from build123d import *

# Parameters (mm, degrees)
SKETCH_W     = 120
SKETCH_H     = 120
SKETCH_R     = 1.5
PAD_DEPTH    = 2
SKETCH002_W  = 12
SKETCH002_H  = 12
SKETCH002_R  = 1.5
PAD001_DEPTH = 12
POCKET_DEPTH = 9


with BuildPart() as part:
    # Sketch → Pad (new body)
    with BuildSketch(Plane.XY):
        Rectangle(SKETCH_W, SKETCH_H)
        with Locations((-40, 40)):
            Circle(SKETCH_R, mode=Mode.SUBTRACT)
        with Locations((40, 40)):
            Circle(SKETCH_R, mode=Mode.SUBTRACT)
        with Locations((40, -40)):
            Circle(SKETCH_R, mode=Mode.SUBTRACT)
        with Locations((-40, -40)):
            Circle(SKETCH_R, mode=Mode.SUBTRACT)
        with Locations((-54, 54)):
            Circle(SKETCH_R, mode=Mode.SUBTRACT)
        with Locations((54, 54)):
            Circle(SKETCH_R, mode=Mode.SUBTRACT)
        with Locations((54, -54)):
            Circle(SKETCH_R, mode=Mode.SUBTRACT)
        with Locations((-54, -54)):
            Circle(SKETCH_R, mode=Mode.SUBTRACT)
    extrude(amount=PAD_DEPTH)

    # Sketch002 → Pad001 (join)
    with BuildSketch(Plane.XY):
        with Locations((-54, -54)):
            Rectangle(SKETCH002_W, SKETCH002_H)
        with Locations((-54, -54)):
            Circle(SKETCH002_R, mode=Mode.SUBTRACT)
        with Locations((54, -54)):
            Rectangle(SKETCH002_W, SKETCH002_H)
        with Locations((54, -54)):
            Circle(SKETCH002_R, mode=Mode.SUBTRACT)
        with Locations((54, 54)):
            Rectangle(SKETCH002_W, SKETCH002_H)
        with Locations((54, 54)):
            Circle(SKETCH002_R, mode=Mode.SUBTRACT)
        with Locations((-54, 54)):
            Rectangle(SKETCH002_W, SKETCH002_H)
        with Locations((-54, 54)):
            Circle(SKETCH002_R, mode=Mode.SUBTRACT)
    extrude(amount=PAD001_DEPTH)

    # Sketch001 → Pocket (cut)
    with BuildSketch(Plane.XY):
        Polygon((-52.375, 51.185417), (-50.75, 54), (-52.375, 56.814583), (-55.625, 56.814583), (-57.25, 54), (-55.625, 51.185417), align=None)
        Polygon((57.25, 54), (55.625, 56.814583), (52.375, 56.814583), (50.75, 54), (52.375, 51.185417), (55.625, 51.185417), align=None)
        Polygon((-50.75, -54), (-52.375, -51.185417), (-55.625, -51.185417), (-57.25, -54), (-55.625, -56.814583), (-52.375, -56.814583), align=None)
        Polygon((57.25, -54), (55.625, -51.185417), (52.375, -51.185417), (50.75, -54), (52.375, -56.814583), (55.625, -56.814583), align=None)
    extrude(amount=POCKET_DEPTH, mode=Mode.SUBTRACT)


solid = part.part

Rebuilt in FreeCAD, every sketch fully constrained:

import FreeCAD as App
import Part
import Sketcher
from FreeCAD import Vector
Q = App.Units.Quantity

doc = App.newDocument("Part")
body = doc.addObject("PartDesign::Body", "Body")

# Sketch on XY plane
sketch1 = body.newObject("Sketcher::SketchObject", "Sketch")
sketch1.AttachmentSupport = (doc.getObject("XY_Plane"), [""])
sketch1.MapMode = "FlatFace"
sketch1.addGeometry([
    Part.LineSegment(Vector(-60, 60, 0), Vector(-60, -60, 0)),  # 0
    Part.LineSegment(Vector(-60, -60, 0), Vector(60, -60, 0)),  # 1
    Part.LineSegment(Vector(60, -60, 0), Vector(60, 60, 0)),  # 2
    Part.LineSegment(Vector(60, 60, 0), Vector(-60, 60, 0)),  # 3
    Part.Circle(Vector(-54, -54, 0), Vector(0, 0, 1), 1.5),  # 4
    Part.Circle(Vector(-40, -40, 0), Vector(0, 0, 1), 1.5),  # 5
    Part.Circle(Vector(54, -54, 0), Vector(0, 0, 1), 1.5),  # 6
    Part.Circle(Vector(40, -40, 0), Vector(0, 0, 1), 1.5),  # 7
    Part.Circle(Vector(-40, 40, 0), Vector(0, 0, 1), 1.5),  # 8
    Part.Circle(Vector(-54, 54, 0), Vector(0, 0, 1), 1.5),  # 9
    Part.Circle(Vector(40, 40, 0), Vector(0, 0, 1), 1.5),  # 10
    Part.Circle(Vector(54, 54, 0), Vector(0, 0, 1), 1.5),  # 11
], False)
sketch1.addConstraint([
    Sketcher.Constraint("Coincident", 0, 2, 1, 1),
    Sketcher.Constraint("Coincident", 1, 2, 2, 1),
    Sketcher.Constraint("Coincident", 2, 2, 3, 1),
    Sketcher.Constraint("Coincident", 3, 2, 0, 1),
    Sketcher.Constraint("Vertical", 0),
    Sketcher.Constraint("Horizontal", 1),
    Sketcher.Constraint("Vertical", 2),
    Sketcher.Constraint("Horizontal", 3),
    Sketcher.Constraint("Equal", 4, 5),
    Sketcher.Constraint("Equal", 5, 6),
    Sketcher.Constraint("Equal", 6, 7),
    Sketcher.Constraint("Equal", 7, 8),
    Sketcher.Constraint("Equal", 8, 9),
    Sketcher.Constraint("Equal", 9, 10),
    Sketcher.Constraint("Equal", 10, 11),
    Sketcher.Constraint("Symmetric", 7, 3, 8, 3, -1, 1),
    Sketcher.Constraint("Symmetric", 6, 3, 9, 3, -1, 1),
    Sketcher.Constraint("Symmetric", 5, 3, 10, 3, -1, 1),
    Sketcher.Constraint("Symmetric", 4, 3, 11, 3, -1, 1),
    Sketcher.Constraint("Symmetric", 0, 2, 2, 2, -1, 1),
    Sketcher.Constraint("Symmetric", 4, 3, 6, 3, -2),
    Sketcher.Constraint("Symmetric", 5, 3, 7, 3, -2),
    Sketcher.Constraint("Equal", 3, 0),
    Sketcher.Constraint("Diameter", 4, 3.0),
    Sketcher.Constraint("DistanceX", 1, 1, 1, 2, 120.0),
    Sketcher.Constraint("DistanceX", 4, 3, -1, 1, 54.0),
    Sketcher.Constraint("DistanceY", 4, 3, -1, 1, 54.0),
    Sketcher.Constraint("DistanceX", 5, 3, -1, 1, 40.0),
    Sketcher.Constraint("DistanceY", 5, 3, -1, 1, 40.0),
])
pad1 = body.newObject("PartDesign::Pad", "Pad")
pad1.Profile = sketch1
pad1.Length = 2

# Sketch on XY plane
sketch2 = body.newObject("Sketcher::SketchObject", "Sketch001")
sketch2.AttachmentSupport = (doc.getObject("XY_Plane"), [""])
sketch2.MapMode = "FlatFace"
sketch2.addGeometry([
    Part.LineSegment(Vector(-60, -48, 0), Vector(-60, -60, 0)),  # 0
    Part.LineSegment(Vector(-60, -60, 0), Vector(-48, -60, 0)),  # 1
    Part.LineSegment(Vector(-48, -60, 0), Vector(-48, -48, 0)),  # 2
    Part.LineSegment(Vector(-48, -48, 0), Vector(-60, -48, 0)),  # 3
    Part.Circle(Vector(-54, -54, 0), Vector(0, 0, 1), 1.5),  # 4
    Part.LineSegment(Vector(48, -48, 0), Vector(48, -60, 0)),  # 5
    Part.LineSegment(Vector(48, -60, 0), Vector(60, -60, 0)),  # 6
    Part.LineSegment(Vector(60, -60, 0), Vector(60, -48, 0)),  # 7
    Part.LineSegment(Vector(60, -48, 0), Vector(48, -48, 0)),  # 8
    Part.Circle(Vector(54, -54, 0), Vector(0, 0, 1), 1.5),  # 9
    Part.LineSegment(Vector(48, 60, 0), Vector(48, 48, 0)),  # 10
    Part.LineSegment(Vector(48, 48, 0), Vector(60, 48, 0)),  # 11
    Part.LineSegment(Vector(60, 48, 0), Vector(60, 60, 0)),  # 12
    Part.LineSegment(Vector(60, 60, 0), Vector(48, 60, 0)),  # 13
    Part.Circle(Vector(54, 54, 0), Vector(0, 0, 1), 1.5),  # 14
    Part.LineSegment(Vector(-60, 60, 0), Vector(-60, 48, 0)),  # 15
    Part.LineSegment(Vector(-60, 48, 0), Vector(-48, 48, 0)),  # 16
    Part.LineSegment(Vector(-48, 48, 0), Vector(-48, 60, 0)),  # 17
    Part.LineSegment(Vector(-48, 60, 0), Vector(-60, 60, 0)),  # 18
    Part.Circle(Vector(-54, 54, 0), Vector(0, 0, 1), 1.5),  # 19
], False)
sketch2.addConstraint([
    Sketcher.Constraint("Coincident", 0, 2, 1, 1),
    Sketcher.Constraint("Coincident", 1, 2, 2, 1),
    Sketcher.Constraint("Coincident", 2, 2, 3, 1),
    Sketcher.Constraint("Coincident", 3, 2, 0, 1),
    Sketcher.Constraint("Coincident", 5, 2, 6, 1),
    Sketcher.Constraint("Coincident", 6, 2, 7, 1),
    Sketcher.Constraint("Coincident", 7, 2, 8, 1),
    Sketcher.Constraint("Coincident", 8, 2, 5, 1),
    Sketcher.Constraint("Coincident", 10, 2, 11, 1),
    Sketcher.Constraint("Coincident", 11, 2, 12, 1),
    Sketcher.Constraint("Coincident", 12, 2, 13, 1),
    Sketcher.Constraint("Coincident", 13, 2, 10, 1),
    Sketcher.Constraint("Coincident", 15, 2, 16, 1),
    Sketcher.Constraint("Coincident", 16, 2, 17, 1),
    Sketcher.Constraint("Coincident", 17, 2, 18, 1),
    Sketcher.Constraint("Coincident", 18, 2, 15, 1),
    Sketcher.Constraint("Vertical", 0),
    Sketcher.Constraint("Horizontal", 1),
    Sketcher.Constraint("Vertical", 2),
    Sketcher.Constraint("Horizontal", 3),
    Sketcher.Constraint("Vertical", 5),
    Sketcher.Constraint("Horizontal", 6),
    Sketcher.Constraint("Vertical", 7),
    Sketcher.Constraint("Horizontal", 8),
    Sketcher.Constraint("Vertical", 10),
    Sketcher.Constraint("Horizontal", 11),
    Sketcher.Constraint("Vertical", 12),
    Sketcher.Constraint("Horizontal", 13),
    Sketcher.Constraint("Vertical", 15),
    Sketcher.Constraint("Horizontal", 16),
    Sketcher.Constraint("Vertical", 17),
    Sketcher.Constraint("Horizontal", 18),
    Sketcher.Constraint("Equal", 4, 9),
    Sketcher.Constraint("Equal", 9, 14),
    Sketcher.Constraint("Equal", 14, 19),
    Sketcher.Constraint("Symmetric", 4, 3, 14, 3, -1, 1),
    Sketcher.Constraint("Symmetric", 9, 3, 19, 3, -1, 1),
    Sketcher.Constraint("Symmetric", 2, 2, 10, 2, -1, 1),
    Sketcher.Constraint("Symmetric", 0, 2, 12, 2, -1, 1),
    Sketcher.Constraint("Symmetric", 7, 2, 15, 2, -1, 1),
    Sketcher.Constraint("Symmetric", 5, 2, 17, 2, -1, 1),
    Sketcher.Constraint("Symmetric", 4, 3, 9, 3, -2),
    Sketcher.Constraint("Symmetric", 1, 2, 5, 2, -2),
    Sketcher.Constraint("Symmetric", 3, 2, 7, 2, -2),
    Sketcher.Constraint("Equal", 18, 0),
    Sketcher.Constraint("Diameter", 4, 3.0),
    Sketcher.Constraint("DistanceX", 1, 1, 1, 2, 12.0),
    Sketcher.Constraint("DistanceX", 4, 3, -1, 1, 54.0),
    Sketcher.Constraint("DistanceY", 4, 3, -1, 1, 54.0),
    Sketcher.Constraint("DistanceX", 0, 2, -1, 1, 60.0),
    Sketcher.Constraint("DistanceY", 0, 2, -1, 1, 60.0),
])
pad2 = body.newObject("PartDesign::Pad", "Pad001")
pad2.Profile = sketch2
pad2.Length = 12

# Sketch on XY plane
sketch3 = body.newObject("Sketcher::SketchObject", "Sketch002")
sketch3.AttachmentSupport = (doc.getObject("XY_Plane"), [""])
sketch3.MapMode = "FlatFace"
sketch3.addGeometry([
    Part.LineSegment(Vector(-52.4, 51.2, 0), Vector(-50.8, 54, 0)),  # 0
    Part.LineSegment(Vector(-50.8, 54, 0), Vector(-52.4, 56.8, 0)),  # 1
    Part.LineSegment(Vector(-52.4, 56.8, 0), Vector(-55.6, 56.8, 0)),  # 2
    Part.LineSegment(Vector(-55.6, 56.8, 0), Vector(-57.2, 54, 0)),  # 3
    Part.LineSegment(Vector(-57.2, 54, 0), Vector(-55.6, 51.2, 0)),  # 4
    Part.LineSegment(Vector(-55.6, 51.2, 0), Vector(-52.4, 51.2, 0)),  # 5
    Part.LineSegment(Vector(57.2, 54, 0), Vector(55.6, 56.8, 0)),  # 6
    Part.LineSegment(Vector(55.6, 56.8, 0), Vector(52.4, 56.8, 0)),  # 7
    Part.LineSegment(Vector(52.4, 56.8, 0), Vector(50.8, 54, 0)),  # 8
    Part.LineSegment(Vector(50.8, 54, 0), Vector(52.4, 51.2, 0)),  # 9
    Part.LineSegment(Vector(52.4, 51.2, 0), Vector(55.6, 51.2, 0)),  # 10
    Part.LineSegment(Vector(55.6, 51.2, 0), Vector(57.2, 54, 0)),  # 11
    Part.LineSegment(Vector(-50.8, -54, 0), Vector(-52.4, -51.2, 0)),  # 12
    Part.LineSegment(Vector(-52.4, -51.2, 0), Vector(-55.6, -51.2, 0)),  # 13
    Part.LineSegment(Vector(-55.6, -51.2, 0), Vector(-57.2, -54, 0)),  # 14
    Part.LineSegment(Vector(-57.2, -54, 0), Vector(-55.6, -56.8, 0)),  # 15
    Part.LineSegment(Vector(-55.6, -56.8, 0), Vector(-52.4, -56.8, 0)),  # 16
    Part.LineSegment(Vector(-52.4, -56.8, 0), Vector(-50.8, -54, 0)),  # 17
    Part.LineSegment(Vector(57.2, -54, 0), Vector(55.6, -51.2, 0)),  # 18
    Part.LineSegment(Vector(55.6, -51.2, 0), Vector(52.4, -51.2, 0)),  # 19
    Part.LineSegment(Vector(52.4, -51.2, 0), Vector(50.8, -54, 0)),  # 20
    Part.LineSegment(Vector(50.8, -54, 0), Vector(52.4, -56.8, 0)),  # 21
    Part.LineSegment(Vector(52.4, -56.8, 0), Vector(55.6, -56.8, 0)),  # 22
    Part.LineSegment(Vector(55.6, -56.8, 0), Vector(57.2, -54, 0)),  # 23
], False)
sketch3.addConstraint([
    Sketcher.Constraint("Coincident", 0, 2, 1, 1),
    Sketcher.Constraint("Coincident", 1, 2, 2, 1),
    Sketcher.Constraint("Coincident", 2, 2, 3, 1),
    Sketcher.Constraint("Coincident", 3, 2, 4, 1),
    Sketcher.Constraint("Coincident", 4, 2, 5, 1),
    Sketcher.Constraint("Coincident", 5, 2, 0, 1),
    Sketcher.Constraint("Coincident", 6, 2, 7, 1),
    Sketcher.Constraint("Coincident", 7, 2, 8, 1),
    Sketcher.Constraint("Coincident", 8, 2, 9, 1),
    Sketcher.Constraint("Coincident", 9, 2, 10, 1),
    Sketcher.Constraint("Coincident", 10, 2, 11, 1),
    Sketcher.Constraint("Coincident", 11, 2, 6, 1),
    Sketcher.Constraint("Coincident", 12, 2, 13, 1),
    Sketcher.Constraint("Coincident", 13, 2, 14, 1),
    Sketcher.Constraint("Coincident", 14, 2, 15, 1),
    Sketcher.Constraint("Coincident", 15, 2, 16, 1),
    Sketcher.Constraint("Coincident", 16, 2, 17, 1),
    Sketcher.Constraint("Coincident", 17, 2, 12, 1),
    Sketcher.Constraint("Coincident", 18, 2, 19, 1),
    Sketcher.Constraint("Coincident", 19, 2, 20, 1),
    Sketcher.Constraint("Coincident", 20, 2, 21, 1),
    Sketcher.Constraint("Coincident", 21, 2, 22, 1),
    Sketcher.Constraint("Coincident", 22, 2, 23, 1),
    Sketcher.Constraint("Coincident", 23, 2, 18, 1),
    Sketcher.Constraint("Horizontal", 2),
    Sketcher.Constraint("Horizontal", 5),
    Sketcher.Constraint("Horizontal", 7),
    Sketcher.Constraint("Horizontal", 10),
    Sketcher.Constraint("Horizontal", 13),
    Sketcher.Constraint("Horizontal", 16),
    Sketcher.Constraint("Horizontal", 19),
    Sketcher.Constraint("Horizontal", 22),
    Sketcher.Constraint("Symmetric", 9, 2, 12, 2, -1, 1),
    Sketcher.Constraint("Symmetric", 11, 2, 14, 2, -1, 1),
    Sketcher.Constraint("Symmetric", 6, 2, 15, 2, -1, 1),
    Sketcher.Constraint("Symmetric", 8, 2, 17, 2, -1, 1),
    Sketcher.Constraint("Symmetric", 4, 2, 18, 2, -1, 1),
    Sketcher.Constraint("Symmetric", 0, 2, 20, 2, -1, 1),
    Sketcher.Constraint("Symmetric", 1, 2, 21, 2, -1, 1),
    Sketcher.Constraint("Symmetric", 3, 2, 23, 2, -1, 1),
    Sketcher.Constraint("Symmetric", 2, 2, 6, 2, -2),
    Sketcher.Constraint("Symmetric", 0, 2, 8, 2, -2),
    Sketcher.Constraint("Symmetric", 5, 2, 9, 2, -2),
    Sketcher.Constraint("Symmetric", 3, 2, 11, 2, -2),
    Sketcher.Constraint("Parallel", 0, 3),
    Sketcher.Constraint("Parallel", 1, 4),
    Sketcher.Constraint("Parallel", 4, 6),
    Sketcher.Constraint("Parallel", 3, 8),
    Sketcher.Constraint("Parallel", 8, 11),
    Sketcher.Constraint("Parallel", 11, 14),
    Sketcher.Constraint("Parallel", 14, 17),
    Sketcher.Constraint("Parallel", 17, 20),
    Sketcher.Constraint("Parallel", 20, 23),
    Sketcher.Constraint("Horizontal", 0, 2, 3, 2),
    Sketcher.Constraint("Vertical", 2, 2, 4, 2),
    Sketcher.Constraint("Angle", 0, Q("60.000004 deg")),
    Sketcher.Constraint("DistanceY", -1, 1, 0, 2, 54.0),
    Sketcher.Constraint("DistanceX", 1, 2, 6, 2, 108.0),
    Sketcher.Constraint("DistanceX", 2, 2, 2, 1, 3.25),
    Sketcher.Constraint("DistanceX", 3, 2, 0, 2, 6.5),
])
pocket1 = body.newObject("PartDesign::Pocket", "Pocket")
pocket1.Profile = sketch3
pocket1.Length = 9
pocket1.Reversed = True

doc.recompute()
